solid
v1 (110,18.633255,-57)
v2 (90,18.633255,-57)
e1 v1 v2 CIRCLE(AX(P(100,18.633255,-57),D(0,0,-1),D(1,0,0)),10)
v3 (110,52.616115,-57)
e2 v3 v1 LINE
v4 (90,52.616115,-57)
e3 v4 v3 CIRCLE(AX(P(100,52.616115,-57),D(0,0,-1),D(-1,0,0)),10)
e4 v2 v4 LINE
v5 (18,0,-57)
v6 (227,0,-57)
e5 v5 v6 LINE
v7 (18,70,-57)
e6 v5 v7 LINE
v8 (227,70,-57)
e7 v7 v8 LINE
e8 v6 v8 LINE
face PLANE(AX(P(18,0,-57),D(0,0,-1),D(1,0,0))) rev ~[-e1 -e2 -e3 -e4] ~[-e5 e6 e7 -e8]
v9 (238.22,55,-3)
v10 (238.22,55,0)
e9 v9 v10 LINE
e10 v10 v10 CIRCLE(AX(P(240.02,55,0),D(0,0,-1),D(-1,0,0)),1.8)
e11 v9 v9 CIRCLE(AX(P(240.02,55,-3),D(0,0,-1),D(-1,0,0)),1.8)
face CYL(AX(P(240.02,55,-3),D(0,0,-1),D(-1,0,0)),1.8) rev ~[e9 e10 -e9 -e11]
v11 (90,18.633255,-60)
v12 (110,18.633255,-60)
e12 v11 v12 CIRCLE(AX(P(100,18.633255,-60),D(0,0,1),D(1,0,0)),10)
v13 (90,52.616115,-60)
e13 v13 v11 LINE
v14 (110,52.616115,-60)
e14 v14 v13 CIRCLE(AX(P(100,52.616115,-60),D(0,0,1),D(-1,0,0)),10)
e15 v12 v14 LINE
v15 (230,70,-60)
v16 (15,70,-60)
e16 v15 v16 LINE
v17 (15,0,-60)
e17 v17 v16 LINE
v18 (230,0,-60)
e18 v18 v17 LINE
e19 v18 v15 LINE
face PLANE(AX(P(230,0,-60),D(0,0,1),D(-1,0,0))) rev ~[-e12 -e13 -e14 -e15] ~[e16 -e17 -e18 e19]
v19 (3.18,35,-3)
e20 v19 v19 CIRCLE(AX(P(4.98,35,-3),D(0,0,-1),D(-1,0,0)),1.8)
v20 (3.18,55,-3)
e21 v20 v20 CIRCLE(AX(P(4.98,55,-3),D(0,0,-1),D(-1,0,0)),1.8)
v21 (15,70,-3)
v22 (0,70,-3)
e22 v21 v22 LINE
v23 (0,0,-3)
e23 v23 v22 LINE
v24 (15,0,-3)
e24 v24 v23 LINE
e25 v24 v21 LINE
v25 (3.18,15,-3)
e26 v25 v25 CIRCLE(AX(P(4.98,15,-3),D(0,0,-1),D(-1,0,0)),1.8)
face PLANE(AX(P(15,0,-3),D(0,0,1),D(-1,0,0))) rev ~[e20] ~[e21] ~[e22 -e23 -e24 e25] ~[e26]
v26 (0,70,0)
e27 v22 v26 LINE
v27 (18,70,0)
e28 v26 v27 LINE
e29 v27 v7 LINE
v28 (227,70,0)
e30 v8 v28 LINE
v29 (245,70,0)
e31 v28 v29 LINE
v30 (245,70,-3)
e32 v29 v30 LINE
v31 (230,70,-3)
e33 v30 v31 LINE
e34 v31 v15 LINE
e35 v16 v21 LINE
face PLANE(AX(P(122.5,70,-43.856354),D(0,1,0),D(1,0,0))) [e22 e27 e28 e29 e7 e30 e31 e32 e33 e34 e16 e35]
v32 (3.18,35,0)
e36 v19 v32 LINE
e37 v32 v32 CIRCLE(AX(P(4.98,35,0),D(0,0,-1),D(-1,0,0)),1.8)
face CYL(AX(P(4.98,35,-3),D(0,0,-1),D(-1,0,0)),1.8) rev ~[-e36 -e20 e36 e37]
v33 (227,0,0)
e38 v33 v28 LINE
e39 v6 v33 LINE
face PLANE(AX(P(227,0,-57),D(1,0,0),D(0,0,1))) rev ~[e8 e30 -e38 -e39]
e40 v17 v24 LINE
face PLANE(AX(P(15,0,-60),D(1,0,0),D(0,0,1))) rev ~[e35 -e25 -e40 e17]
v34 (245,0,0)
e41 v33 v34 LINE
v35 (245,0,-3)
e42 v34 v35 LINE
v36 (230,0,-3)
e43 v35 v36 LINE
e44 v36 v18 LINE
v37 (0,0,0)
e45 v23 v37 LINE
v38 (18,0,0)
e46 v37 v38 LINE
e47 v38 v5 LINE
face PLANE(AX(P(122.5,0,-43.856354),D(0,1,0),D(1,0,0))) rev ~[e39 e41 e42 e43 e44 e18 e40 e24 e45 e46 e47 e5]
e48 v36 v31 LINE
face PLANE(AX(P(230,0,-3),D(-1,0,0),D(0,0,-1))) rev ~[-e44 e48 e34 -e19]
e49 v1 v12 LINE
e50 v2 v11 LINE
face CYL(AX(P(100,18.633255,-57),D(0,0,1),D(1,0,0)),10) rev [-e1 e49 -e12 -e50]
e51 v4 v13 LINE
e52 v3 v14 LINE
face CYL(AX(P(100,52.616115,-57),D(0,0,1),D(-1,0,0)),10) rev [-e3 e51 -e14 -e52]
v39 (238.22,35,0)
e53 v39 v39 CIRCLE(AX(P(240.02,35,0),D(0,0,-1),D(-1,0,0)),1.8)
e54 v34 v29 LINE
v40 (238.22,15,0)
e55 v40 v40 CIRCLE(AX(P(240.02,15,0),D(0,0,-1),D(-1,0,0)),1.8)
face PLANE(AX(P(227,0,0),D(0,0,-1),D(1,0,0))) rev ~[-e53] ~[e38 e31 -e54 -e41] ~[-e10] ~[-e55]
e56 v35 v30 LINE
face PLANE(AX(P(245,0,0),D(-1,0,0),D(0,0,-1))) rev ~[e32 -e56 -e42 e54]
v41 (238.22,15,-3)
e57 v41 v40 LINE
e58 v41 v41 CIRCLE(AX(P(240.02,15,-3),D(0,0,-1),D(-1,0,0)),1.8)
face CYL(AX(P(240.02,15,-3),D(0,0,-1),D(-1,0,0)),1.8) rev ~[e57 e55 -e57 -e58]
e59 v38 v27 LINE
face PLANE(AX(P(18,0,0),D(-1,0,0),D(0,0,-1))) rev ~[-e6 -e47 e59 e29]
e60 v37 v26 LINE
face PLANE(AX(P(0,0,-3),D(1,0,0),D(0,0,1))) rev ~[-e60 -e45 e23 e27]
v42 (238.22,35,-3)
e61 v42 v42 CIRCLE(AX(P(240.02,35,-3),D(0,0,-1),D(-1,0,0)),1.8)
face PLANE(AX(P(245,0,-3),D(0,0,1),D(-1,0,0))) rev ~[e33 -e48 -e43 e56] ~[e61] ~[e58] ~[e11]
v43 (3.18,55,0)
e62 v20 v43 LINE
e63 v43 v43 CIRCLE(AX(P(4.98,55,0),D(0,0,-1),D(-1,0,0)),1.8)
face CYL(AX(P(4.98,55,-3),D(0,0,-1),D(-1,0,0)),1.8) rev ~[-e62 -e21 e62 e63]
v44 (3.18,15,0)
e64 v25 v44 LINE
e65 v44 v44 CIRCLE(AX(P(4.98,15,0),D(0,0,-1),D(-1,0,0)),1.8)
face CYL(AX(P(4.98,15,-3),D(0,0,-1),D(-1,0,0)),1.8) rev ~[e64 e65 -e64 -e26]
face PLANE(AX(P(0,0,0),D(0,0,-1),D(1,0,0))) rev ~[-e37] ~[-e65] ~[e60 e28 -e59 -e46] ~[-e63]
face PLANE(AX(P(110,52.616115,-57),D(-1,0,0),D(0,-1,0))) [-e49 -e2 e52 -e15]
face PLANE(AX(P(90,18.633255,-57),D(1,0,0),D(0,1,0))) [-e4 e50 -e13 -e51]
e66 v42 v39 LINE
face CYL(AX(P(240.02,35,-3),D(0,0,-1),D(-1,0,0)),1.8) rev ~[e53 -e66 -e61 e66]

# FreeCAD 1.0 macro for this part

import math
import FreeCAD as App
import Part
import Sketcher

doc = App.newDocument("Part")
body = doc.addObject("PartDesign::Body", "Body")

# Sketch on XZ plane
sketch1 = body.newObject("Sketcher::SketchObject", "Sketch")
sketch1.AttachmentSupport = (doc.getObject("XZ_Plane"), [""])
sketch1.MapMode = "FlatFace"
sketch1.addGeometry(Part.LineSegment(App.Vector(0, 0, 0), App.Vector(18, 0, 0)), False)
sketch1.addGeometry(Part.LineSegment(App.Vector(18, 0, 0), App.Vector(18, -57, 0)), False)
sketch1.addGeometry(Part.LineSegment(App.Vector(18, -57, 0), App.Vector(227, -57, 0)), False)
sketch1.addGeometry(Part.LineSegment(App.Vector(227, -57, 0), App.Vector(227, 0, 0)), False)
sketch1.addGeometry(Part.LineSegment(App.Vector(227, 0, 0), App.Vector(245, 0, 0)), False)
sketch1.addGeometry(Part.LineSegment(App.Vector(245, 0, 0), App.Vector(245, -3, 0)), False)
sketch1.addGeometry(Part.LineSegment(App.Vector(245, -3, 0), App.Vector(230, -3, 0)), False)
sketch1.addGeometry(Part.LineSegment(App.Vector(230, -3, 0), App.Vector(230, -60, 0)), False)
sketch1.addGeometry(Part.LineSegment(App.Vector(230, -60, 0), App.Vector(15, -60, 0)), False)
sketch1.addGeometry(Part.LineSegment(App.Vector(15, -60, 0), App.Vector(15, -3, 0)), False)
sketch1.addGeometry(Part.LineSegment(App.Vector(15, -3, 0), App.Vector(0, -3, 0)), False)
sketch1.addGeometry(Part.LineSegment(App.Vector(0, -3, 0), App.Vector(0, 0, 0)), False)
sketch1.addConstraint(Sketcher.Constraint("Coincident", 0, 2, 1, 1))
sketch1.addConstraint(Sketcher.Constraint("Coincident", 1, 2, 2, 1))
sketch1.addConstraint(Sketcher.Constraint("Coincident", 2, 2, 3, 1))
sketch1.addConstraint(Sketcher.Constraint("Coincident", 3, 2, 4, 1))
sketch1.addConstraint(Sketcher.Constraint("Coincident", 4, 2, 5, 1))
sketch1.addConstraint(Sketcher.Constraint("Coincident", 5, 2, 6, 1))
sketch1.addConstraint(Sketcher.Constraint("Coincident", 6, 2, 7, 1))
sketch1.addConstraint(Sketcher.Constraint("Coincident", 7, 2, 8, 1))
sketch1.addConstraint(Sketcher.Constraint("Coincident", 8, 2, 9, 1))
sketch1.addConstraint(Sketcher.Constraint("Coincident", 9, 2, 10, 1))
sketch1.addConstraint(Sketcher.Constraint("Coincident", 10, 2, 11, 1))
sketch1.addConstraint(Sketcher.Constraint("Coincident", 11, 2, 0, 1))
sketch1.addConstraint(Sketcher.Constraint("Horizontal", 0))
sketch1.addConstraint(Sketcher.Constraint("Vertical", 1))
sketch1.addConstraint(Sketcher.Constraint("Horizontal", 2))
sketch1.addConstraint(Sketcher.Constraint("Vertical", 3))
sketch1.addConstraint(Sketcher.Constraint("Horizontal", 4))
sketch1.addConstraint(Sketcher.Constraint("Vertical", 5))
sketch1.addConstraint(Sketcher.Constraint("Horizontal", 6))
sketch1.addConstraint(Sketcher.Constraint("Vertical", 7))
sketch1.addConstraint(Sketcher.Constraint("Horizontal", 8))
sketch1.addConstraint(Sketcher.Constraint("Vertical", 9))
sketch1.addConstraint(Sketcher.Constraint("Horizontal", 10))
sketch1.addConstraint(Sketcher.Constraint("Vertical", 11))
sketch1.addConstraint(Sketcher.Constraint("Coincident", 11, 2, -1, 1))
sketch1.addConstraint(Sketcher.Constraint("PointOnObject", 3, 2, -1))
sketch1.addConstraint(Sketcher.Constraint("Horizontal", 6, 2, 9, 2))
sketch1.addConstraint(Sketcher.Constraint("Equal", 0, 4))
sketch1.addConstraint(Sketcher.Constraint("Equal", 6, 10))
sketch1.addConstraint(Sketcher.Constraint("Equal", 3, 7))
sketch1.addConstraint(Sketcher.Constraint("DistanceX", 0, 1, 0, 2, 18.0))
sketch1.addConstraint(Sketcher.Constraint("DistanceX", 2, 1, 2, 2, 209.0))
sketch1.addConstraint(Sketcher.Constraint("DistanceX", 6, 2, 6, 1, 15.0))
sketch1.addConstraint(Sketcher.Constraint("DistanceY", 1, 2, 1, 1, 57.0))
sketch1.addConstraint(Sketcher.Constraint("DistanceY", 5, 2, 5, 1, 3.0))
pad1 = body.newObject("PartDesign::Pad", "Pad")
pad1.Profile = sketch1
pad1.Length = 70
pad1.Reversed = True

# Sketch on XY plane
sketch2 = body.newObject("Sketcher::SketchObject", "Sketch001")
sketch2.AttachmentSupport = (doc.getObject("XY_Plane"), [""])
sketch2.MapMode = "FlatFace"
sketch2.AttachmentOffset = App.Placement(App.Vector(0, 0, -3), App.Rotation())
sketch2.addGeometry(Part.Circle(App.Vector(240, 55, 0), App.Vector(0, 0, 1), 1.8), False)
sketch2.addGeometry(Part.Circle(App.Vector(240, 35, 0), App.Vector(0, 0, 1), 1.8), False)
sketch2.addGeometry(Part.Circle(App.Vector(240, 15, 0), App.Vector(0, 0, 1), 1.8), False)
sketch2.addGeometry(Part.Circle(App.Vector(5, 15, 0), App.Vector(0, 0, 1), 1.8), False)
sketch2.addGeometry(Part.Circle(App.Vector(5, 35, 0), App.Vector(0, 0, 1), 1.8), False)
sketch2.addGeometry(Part.Circle(App.Vector(5, 55, 0), App.Vector(0, 0, 1), 1.8), False)
sketch2.addConstraint(Sketcher.Constraint("Equal", 0, 1))
sketch2.addConstraint(Sketcher.Constraint("Equal", 1, 2))
sketch2.addConstraint(Sketcher.Constraint("Equal", 2, 3))
sketch2.addConstraint(Sketcher.Constraint("Equal", 3, 4))
sketch2.addConstraint(Sketcher.Constraint("Equal", 4, 5))
sketch2.addConstraint(Sketcher.Constraint("Horizontal", 2, 3, 3, 3))
sketch2.addConstraint(Sketcher.Constraint("Horizontal", 1, 3, 4, 3))
sketch2.addConstraint(Sketcher.Constraint("Horizontal", 0, 3, 5, 3))
sketch2.addConstraint(Sketcher.Constraint("Vertical", 0, 3, 1, 3))
sketch2.addConstraint(Sketcher.Constraint("Vertical", 1, 3, 2, 3))
sketch2.addConstraint(Sketcher.Constraint("Vertical", 3, 3, 4, 3))
sketch2.addConstraint(Sketcher.Constraint("Vertical", 4, 3, 5, 3))
sketch2.addConstraint(Sketcher.Constraint("Diameter", 0, 3.6))
sketch2.addConstraint(Sketcher.Constraint("DistanceY", -1, 1, 0, 3, 55.0))
sketch2.addConstraint(Sketcher.Constraint("DistanceY", -1, 1, 1, 3, 35.0))
sketch2.addConstraint(Sketcher.Constraint("DistanceY", -1, 1, 2, 3, 15.0))
sketch2.addConstraint(Sketcher.Constraint("DistanceX", -1, 1, 0, 3, 240.02))
sketch2.addConstraint(Sketcher.Constraint("DistanceX", -1, 1, 3, 3, 4.98))
pocket1 = body.newObject("PartDesign::Pocket", "Pocket")
pocket1.Profile = sketch2
pocket1.Type = "ThroughAll"
pocket1.Reversed = True

# Sketch on XY plane
sketch3 = body.newObject("Sketcher::SketchObject", "Sketch002")
sketch3.AttachmentSupport = (doc.getObject("XY_Plane"), [""])
sketch3.MapMode = "FlatFace"
sketch3.AttachmentOffset = App.Placement(App.Vector(0, 0, -57), App.Rotation())
sketch3.addGeometry(Part.LineSegment(App.Vector(110, 19, 0), App.Vector(110, 53, 0)), False)
sketch3.addGeometry(Part.ArcOfCircle(Part.Circle(App.Vector(100, 53, 0), App.Vector(0, 0, 1), 10), math.radians(0), math.radians(180)), False)
sketch3.addGeometry(Part.LineSegment(App.Vector(90, 53, 0), App.Vector(90, 19, 0)), False)
sketch3.addGeometry(Part.ArcOfCircle(Part.Circle(App.Vector(100, 19, 0), App.Vector(0, 0, 1), 10), math.radians(180), math.radians(360)), False)
sketch3.addConstraint(Sketcher.Constraint("Tangent", 0, 2, 1, 1))
sketch3.addConstraint(Sketcher.Constraint("Tangent", 1, 2, 2, 1))
sketch3.addConstraint(Sketcher.Constraint("Tangent", 2, 2, 3, 1))
sketch3.addConstraint(Sketcher.Constraint("Tangent", 3, 2, 0, 1))
sketch3.addConstraint(Sketcher.Constraint("Vertical", 0))
sketch3.addConstraint(Sketcher.Constraint("Vertical", 2))
sketch3.addConstraint(Sketcher.Constraint("Radius", 1, 10.0))
sketch3.addConstraint(Sketcher.Constraint("DistanceX", -1, 1, 1, 3, 100.0))
sketch3.addConstraint(Sketcher.Constraint("DistanceY", 0, 1, 0, 2, 33.982859))
sketch3.addConstraint(Sketcher.Constraint("DistanceY", -1, 1, 1, 3, 52.616115))
pocket2 = body.newObject("PartDesign::Pocket", "Pocket001")
pocket2.Profile = sketch3
pocket2.Type = "UpToFirst"

doc.recompute()
